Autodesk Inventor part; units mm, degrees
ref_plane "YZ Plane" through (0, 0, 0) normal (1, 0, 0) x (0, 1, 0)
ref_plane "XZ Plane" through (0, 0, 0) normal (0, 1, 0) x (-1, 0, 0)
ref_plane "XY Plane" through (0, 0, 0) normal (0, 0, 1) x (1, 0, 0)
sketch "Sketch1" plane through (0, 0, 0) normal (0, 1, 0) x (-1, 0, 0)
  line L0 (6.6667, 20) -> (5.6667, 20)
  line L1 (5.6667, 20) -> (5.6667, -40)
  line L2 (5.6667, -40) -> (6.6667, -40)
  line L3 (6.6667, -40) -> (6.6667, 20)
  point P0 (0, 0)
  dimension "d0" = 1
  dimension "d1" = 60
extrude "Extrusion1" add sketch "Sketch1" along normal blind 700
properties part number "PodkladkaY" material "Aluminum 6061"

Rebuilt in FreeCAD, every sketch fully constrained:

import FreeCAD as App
import Part
import Sketcher

V = App.Vector
Q = App.Units.Quantity


def add_polygon(sketch, points):
    """Adds a closed chain of lines whose ends are joined by coincident constraints."""
    first, n = sketch.GeometryCount, len(points)
    for a, b in zip(points, points[1:] + points[:1]):
        sketch.addGeometry(Part.LineSegment(App.Vector(*a, 0), App.Vector(*b, 0)), False)
    for i in range(n):
        sketch.addConstraint(Sketcher.Constraint("Coincident", first + i, 2, first + (i + 1) % n, 1))

doc = App.newDocument("Part")
body = doc.addObject("PartDesign::Body", "Body")

# Sketch on XZ plane
sketch1 = body.newObject("Sketcher::SketchObject", "Sketch")
sketch1.AttachmentSupport = (doc.getObject("XZ_Plane"), [""])
sketch1.MapMode = "FlatFace"
add_polygon(sketch1, [(-6.7, -40), (-6.7, 20), (-5.7, 20), (-5.7, -40)])  # lines 0-3
sketch1.addConstraint([
    Sketcher.Constraint("Vertical", 0),
    Sketcher.Constraint("Horizontal", 1),
    Sketcher.Constraint("Vertical", 2),
    Sketcher.Constraint("Horizontal", 3),
    Sketcher.Constraint("DistanceX", 1, 1, 1, 2, Q("1 mm")),
    Sketcher.Constraint("DistanceY", 0, 1, 0, 2, Q("60 mm")),
    Sketcher.Constraint("DistanceY", -1, 1, 0, 2, Q("20 mm")),
    Sketcher.Constraint("DistanceX", 0, 2, -1, 1, Q("6.6667 mm")),
])
pad1 = body.newObject("PartDesign::Pad", "Pad")
pad1.Profile = sketch1
pad1.Length = 700
pad1.Reversed = True

doc.recompute()
